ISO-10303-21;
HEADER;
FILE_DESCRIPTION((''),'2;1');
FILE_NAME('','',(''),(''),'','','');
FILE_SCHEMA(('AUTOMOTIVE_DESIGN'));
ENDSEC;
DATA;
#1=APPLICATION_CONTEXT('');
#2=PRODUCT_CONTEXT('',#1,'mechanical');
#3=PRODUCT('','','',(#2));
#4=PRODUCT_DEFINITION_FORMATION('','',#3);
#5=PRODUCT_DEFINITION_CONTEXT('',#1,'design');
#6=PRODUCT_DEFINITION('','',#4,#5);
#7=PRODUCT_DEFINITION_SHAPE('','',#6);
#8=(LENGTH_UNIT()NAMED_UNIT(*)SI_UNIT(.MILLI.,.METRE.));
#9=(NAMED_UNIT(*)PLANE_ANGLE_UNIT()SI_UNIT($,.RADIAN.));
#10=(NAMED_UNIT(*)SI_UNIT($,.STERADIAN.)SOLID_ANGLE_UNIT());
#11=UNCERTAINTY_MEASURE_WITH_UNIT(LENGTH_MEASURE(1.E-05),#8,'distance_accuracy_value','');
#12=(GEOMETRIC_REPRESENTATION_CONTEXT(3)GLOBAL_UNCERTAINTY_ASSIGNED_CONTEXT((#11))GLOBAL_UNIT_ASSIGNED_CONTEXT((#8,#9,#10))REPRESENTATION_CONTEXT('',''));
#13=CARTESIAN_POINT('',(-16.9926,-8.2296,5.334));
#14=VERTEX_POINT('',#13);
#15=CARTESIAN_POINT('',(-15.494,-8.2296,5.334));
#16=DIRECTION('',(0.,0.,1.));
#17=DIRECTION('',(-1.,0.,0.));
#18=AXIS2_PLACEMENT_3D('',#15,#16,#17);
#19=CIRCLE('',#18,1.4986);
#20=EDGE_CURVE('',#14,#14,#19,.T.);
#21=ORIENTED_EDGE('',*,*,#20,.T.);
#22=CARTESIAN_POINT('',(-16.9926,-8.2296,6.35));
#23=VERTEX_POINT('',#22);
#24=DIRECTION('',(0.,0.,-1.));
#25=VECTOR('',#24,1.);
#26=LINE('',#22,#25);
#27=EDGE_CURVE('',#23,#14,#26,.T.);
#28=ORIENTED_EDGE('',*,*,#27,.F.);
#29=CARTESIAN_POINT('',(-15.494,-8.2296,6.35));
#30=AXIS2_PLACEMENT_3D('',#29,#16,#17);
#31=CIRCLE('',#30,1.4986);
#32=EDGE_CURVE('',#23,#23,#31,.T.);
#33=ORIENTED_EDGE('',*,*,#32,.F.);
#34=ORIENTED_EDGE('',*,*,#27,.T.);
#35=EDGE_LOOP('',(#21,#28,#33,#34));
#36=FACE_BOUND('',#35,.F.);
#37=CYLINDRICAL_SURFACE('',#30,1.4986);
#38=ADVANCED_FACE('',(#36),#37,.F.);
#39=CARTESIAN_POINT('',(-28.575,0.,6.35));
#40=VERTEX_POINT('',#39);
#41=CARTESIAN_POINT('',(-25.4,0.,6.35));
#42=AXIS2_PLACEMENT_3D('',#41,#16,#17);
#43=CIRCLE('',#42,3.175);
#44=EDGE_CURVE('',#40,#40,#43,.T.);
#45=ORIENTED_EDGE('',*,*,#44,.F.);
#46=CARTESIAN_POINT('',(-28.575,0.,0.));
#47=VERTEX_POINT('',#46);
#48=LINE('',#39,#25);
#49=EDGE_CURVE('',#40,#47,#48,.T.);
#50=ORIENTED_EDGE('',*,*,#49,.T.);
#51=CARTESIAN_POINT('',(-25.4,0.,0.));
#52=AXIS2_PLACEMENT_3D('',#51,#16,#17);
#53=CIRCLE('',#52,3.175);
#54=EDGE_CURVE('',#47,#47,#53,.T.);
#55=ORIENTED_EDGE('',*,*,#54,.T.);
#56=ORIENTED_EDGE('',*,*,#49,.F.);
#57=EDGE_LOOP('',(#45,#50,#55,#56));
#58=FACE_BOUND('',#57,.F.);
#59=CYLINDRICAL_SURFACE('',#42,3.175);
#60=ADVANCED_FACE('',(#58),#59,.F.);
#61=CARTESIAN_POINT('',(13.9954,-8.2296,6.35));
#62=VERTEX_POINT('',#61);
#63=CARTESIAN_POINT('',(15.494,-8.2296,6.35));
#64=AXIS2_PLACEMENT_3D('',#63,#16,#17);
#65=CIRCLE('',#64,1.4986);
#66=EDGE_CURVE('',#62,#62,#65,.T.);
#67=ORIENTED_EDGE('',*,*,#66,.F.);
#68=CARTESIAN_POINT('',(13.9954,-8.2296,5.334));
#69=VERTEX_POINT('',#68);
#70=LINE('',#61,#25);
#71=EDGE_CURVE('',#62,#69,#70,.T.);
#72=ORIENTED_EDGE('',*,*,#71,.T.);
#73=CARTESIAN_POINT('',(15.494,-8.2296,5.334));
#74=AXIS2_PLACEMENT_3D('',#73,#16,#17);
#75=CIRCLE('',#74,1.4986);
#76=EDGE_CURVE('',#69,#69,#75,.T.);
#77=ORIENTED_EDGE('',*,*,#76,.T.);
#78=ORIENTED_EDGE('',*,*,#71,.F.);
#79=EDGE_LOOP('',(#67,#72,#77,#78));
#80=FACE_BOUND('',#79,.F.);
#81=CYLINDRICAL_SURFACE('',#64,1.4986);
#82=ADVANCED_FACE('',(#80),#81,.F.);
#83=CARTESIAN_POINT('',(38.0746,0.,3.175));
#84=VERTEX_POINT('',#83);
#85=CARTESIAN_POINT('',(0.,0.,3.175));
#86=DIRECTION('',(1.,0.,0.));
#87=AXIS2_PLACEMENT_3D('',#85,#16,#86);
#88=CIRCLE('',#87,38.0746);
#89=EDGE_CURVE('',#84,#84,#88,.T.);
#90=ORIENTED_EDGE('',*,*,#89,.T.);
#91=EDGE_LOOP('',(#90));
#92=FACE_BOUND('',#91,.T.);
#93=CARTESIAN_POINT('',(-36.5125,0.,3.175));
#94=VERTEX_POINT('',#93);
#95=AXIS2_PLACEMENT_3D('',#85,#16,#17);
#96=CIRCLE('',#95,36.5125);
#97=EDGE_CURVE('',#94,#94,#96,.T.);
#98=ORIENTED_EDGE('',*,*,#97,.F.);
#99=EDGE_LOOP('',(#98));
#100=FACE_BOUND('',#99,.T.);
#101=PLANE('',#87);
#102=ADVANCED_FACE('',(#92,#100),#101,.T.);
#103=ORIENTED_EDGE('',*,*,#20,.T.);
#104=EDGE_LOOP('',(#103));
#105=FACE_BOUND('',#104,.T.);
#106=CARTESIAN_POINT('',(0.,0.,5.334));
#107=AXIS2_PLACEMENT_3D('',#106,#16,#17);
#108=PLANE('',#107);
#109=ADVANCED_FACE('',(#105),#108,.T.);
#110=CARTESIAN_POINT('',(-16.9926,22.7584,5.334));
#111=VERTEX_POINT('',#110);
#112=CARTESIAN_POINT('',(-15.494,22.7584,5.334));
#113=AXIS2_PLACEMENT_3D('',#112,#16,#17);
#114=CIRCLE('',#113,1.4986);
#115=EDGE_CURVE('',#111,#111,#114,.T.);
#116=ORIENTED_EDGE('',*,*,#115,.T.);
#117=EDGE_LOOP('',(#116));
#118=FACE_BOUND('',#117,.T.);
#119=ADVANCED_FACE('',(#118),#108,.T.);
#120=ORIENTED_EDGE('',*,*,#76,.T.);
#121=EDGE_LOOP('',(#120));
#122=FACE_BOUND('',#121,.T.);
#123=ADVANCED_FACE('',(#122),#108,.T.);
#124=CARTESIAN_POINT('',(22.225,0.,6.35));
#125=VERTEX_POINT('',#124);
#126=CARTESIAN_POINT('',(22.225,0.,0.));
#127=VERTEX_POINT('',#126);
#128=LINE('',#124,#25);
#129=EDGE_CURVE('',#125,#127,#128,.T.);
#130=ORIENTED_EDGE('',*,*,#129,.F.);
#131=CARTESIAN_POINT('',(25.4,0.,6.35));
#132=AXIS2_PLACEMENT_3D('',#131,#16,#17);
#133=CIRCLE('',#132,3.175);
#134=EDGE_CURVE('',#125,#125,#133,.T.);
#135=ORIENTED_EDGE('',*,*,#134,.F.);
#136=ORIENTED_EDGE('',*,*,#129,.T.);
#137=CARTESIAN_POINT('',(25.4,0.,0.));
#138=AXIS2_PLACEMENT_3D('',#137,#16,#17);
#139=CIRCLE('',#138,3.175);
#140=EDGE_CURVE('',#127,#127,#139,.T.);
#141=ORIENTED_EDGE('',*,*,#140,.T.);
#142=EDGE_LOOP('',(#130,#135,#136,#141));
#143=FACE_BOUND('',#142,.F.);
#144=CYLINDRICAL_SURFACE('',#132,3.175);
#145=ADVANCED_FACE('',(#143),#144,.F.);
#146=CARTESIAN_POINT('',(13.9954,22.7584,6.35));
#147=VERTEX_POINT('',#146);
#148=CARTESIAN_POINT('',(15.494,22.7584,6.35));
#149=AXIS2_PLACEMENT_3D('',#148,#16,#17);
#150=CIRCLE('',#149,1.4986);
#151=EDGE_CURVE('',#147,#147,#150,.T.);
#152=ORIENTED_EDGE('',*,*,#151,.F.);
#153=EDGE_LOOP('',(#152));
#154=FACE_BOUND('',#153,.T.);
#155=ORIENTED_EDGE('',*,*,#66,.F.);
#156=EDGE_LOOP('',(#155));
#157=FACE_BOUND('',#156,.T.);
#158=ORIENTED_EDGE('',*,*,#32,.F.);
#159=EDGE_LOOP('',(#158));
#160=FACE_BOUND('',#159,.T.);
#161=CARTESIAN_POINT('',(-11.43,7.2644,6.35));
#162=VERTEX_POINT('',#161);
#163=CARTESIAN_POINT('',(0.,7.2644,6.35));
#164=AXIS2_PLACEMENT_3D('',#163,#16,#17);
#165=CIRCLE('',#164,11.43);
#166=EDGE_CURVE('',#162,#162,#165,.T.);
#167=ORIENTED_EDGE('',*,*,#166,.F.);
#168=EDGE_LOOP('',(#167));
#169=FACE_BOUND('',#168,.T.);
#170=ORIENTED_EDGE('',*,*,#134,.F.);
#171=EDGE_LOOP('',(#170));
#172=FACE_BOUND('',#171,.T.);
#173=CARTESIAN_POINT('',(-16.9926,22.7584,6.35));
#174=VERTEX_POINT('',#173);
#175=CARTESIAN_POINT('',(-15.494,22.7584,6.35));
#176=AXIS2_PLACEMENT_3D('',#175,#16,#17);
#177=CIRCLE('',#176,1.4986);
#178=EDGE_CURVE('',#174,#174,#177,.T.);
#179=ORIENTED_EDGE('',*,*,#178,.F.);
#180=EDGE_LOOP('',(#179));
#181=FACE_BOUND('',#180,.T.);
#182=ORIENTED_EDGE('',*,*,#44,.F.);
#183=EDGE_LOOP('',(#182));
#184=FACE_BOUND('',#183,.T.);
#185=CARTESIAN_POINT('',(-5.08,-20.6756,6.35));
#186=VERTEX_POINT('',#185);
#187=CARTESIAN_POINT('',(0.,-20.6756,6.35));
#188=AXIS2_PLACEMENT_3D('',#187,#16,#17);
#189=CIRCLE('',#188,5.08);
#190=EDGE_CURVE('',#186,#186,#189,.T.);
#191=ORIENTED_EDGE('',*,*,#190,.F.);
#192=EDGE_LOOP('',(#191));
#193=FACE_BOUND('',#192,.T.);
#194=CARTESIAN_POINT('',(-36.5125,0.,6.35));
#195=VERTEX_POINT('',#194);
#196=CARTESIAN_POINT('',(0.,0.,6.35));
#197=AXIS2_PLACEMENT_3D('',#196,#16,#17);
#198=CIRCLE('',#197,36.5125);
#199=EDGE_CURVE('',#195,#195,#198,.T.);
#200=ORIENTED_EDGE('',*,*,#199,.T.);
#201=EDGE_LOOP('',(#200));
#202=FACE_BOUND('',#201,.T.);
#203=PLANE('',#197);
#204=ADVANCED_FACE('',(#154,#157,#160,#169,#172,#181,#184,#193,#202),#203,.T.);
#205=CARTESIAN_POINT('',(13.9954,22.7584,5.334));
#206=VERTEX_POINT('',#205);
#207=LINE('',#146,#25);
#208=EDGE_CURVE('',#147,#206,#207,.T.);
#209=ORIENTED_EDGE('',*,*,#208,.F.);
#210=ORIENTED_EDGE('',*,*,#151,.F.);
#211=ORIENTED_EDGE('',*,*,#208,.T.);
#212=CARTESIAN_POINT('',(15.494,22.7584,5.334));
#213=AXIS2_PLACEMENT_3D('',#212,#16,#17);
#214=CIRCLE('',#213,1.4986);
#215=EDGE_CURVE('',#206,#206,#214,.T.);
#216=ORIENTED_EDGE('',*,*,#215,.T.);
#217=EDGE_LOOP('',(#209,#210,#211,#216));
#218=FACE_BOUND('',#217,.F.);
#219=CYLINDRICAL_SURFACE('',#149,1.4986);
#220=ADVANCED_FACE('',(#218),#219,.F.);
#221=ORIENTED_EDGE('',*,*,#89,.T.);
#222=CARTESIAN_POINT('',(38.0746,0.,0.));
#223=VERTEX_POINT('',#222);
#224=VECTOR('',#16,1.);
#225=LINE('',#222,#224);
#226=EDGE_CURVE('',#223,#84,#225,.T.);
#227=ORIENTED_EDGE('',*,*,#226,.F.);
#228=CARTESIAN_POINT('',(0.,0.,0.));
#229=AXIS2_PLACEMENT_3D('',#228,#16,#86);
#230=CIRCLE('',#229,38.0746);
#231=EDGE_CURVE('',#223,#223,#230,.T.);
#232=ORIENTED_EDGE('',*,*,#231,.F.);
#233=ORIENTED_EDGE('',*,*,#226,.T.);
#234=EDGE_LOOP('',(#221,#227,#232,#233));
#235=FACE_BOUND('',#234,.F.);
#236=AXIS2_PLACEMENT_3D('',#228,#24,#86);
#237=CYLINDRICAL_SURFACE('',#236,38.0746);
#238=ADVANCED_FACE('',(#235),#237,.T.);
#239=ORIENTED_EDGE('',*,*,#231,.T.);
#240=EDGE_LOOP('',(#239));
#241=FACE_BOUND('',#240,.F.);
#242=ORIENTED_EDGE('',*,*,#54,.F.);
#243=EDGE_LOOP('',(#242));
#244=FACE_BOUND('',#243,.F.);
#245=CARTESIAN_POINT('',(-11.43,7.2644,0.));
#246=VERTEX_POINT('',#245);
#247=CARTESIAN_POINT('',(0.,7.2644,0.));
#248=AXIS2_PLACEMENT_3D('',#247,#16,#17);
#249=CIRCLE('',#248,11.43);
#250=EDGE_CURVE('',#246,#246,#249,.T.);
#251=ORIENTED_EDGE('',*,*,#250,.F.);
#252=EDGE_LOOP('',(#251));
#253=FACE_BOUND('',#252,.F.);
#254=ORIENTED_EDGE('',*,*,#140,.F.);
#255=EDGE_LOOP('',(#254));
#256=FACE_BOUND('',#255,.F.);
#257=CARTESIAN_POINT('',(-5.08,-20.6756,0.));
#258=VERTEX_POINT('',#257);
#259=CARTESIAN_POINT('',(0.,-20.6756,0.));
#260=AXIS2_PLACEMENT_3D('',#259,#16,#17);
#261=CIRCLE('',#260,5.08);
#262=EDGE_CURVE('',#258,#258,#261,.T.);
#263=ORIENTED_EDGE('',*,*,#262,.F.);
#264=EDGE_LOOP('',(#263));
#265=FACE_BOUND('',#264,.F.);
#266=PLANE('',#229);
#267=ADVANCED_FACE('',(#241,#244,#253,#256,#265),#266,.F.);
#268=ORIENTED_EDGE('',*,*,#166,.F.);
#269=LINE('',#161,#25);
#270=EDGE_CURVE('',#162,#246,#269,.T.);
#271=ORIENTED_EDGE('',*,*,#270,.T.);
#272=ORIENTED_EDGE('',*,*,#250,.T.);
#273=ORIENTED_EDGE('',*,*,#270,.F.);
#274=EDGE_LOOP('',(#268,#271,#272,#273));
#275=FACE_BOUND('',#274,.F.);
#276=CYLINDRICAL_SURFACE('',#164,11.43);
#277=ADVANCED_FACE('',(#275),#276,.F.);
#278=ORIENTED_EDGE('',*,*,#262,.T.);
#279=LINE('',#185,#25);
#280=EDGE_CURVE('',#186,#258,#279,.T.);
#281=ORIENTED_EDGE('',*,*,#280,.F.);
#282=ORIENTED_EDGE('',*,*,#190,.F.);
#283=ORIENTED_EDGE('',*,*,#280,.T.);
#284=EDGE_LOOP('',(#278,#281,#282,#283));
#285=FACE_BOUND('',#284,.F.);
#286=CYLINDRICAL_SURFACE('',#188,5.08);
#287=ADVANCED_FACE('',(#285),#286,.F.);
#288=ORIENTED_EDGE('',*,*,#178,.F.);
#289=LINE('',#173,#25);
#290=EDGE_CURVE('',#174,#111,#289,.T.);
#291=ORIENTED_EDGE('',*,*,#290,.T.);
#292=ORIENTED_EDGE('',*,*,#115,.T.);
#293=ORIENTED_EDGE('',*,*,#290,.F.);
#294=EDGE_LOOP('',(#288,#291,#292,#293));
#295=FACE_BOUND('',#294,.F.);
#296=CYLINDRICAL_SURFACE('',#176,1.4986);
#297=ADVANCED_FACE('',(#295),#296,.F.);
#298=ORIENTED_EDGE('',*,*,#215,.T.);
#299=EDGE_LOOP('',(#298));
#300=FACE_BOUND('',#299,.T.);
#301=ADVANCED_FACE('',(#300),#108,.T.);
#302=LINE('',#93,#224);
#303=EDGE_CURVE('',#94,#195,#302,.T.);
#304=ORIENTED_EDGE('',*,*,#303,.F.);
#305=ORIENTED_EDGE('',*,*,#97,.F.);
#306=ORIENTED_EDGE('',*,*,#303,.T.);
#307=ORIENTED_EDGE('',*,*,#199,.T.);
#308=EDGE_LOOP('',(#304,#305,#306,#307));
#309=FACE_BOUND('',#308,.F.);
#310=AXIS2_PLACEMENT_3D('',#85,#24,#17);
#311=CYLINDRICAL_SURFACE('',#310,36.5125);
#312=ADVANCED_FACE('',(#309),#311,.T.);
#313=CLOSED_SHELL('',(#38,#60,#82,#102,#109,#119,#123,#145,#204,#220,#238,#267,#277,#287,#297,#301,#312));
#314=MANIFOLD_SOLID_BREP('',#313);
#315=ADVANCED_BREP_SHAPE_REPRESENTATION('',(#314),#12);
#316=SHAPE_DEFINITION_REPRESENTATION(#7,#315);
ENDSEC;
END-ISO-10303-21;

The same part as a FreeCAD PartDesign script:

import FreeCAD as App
import Part
import Sketcher
from FreeCAD import Vector
Q = App.Units.Quantity

doc = App.newDocument("Part")
body = doc.addObject("PartDesign::Body", "Body")

sketch1 = body.newObject("Sketcher::SketchObject", "Sketch")
sketch1.AttachmentSupport = (doc.getObject("XY_Plane"), [""])
sketch1.MapMode = "FlatFace"
sketch1.addGeometry(Part.Circle(Vector(0, 0, 0), Vector(0, 0, 1), 38), False)
sketch1.addConstraint([
    Sketcher.Constraint("Coincident", 0, 3, -1, 1),
    Sketcher.Constraint("Diameter", 0, Q("2.998 in")),
])
pad1 = body.newObject("PartDesign::Pad", "Pad")
pad1.Profile = sketch1
pad1.Length = Q("0.125 in")

sketch2 = body.newObject("Sketcher::SketchObject", "Sketch001")
sketch2.AttachmentSupport = (doc.getObject("XY_Plane"), [""])
sketch2.MapMode = "FlatFace"
sketch2.AttachmentOffset = App.Placement(Vector(0, 0, 0.125 * 25.4), App.Rotation())
sketch2.addGeometry(Part.Circle(Vector(0, 0, 0), Vector(0, 0, 1), 37), False)
sketch2.addConstraint([
    Sketcher.Constraint("Coincident", 0, 3, -1, 1),
    Sketcher.Constraint("Diameter", 0, Q("2.875 in")),
])
pad2 = body.newObject("PartDesign::Pad", "Pad001")
pad2.Profile = sketch2
pad2.Length = Q("0.125 in")

sketch3 = body.newObject("Sketcher::SketchObject", "Sketch002")
sketch3.AttachmentSupport = (doc.getObject("XY_Plane"), [""])
sketch3.MapMode = "FlatFace"
sketch3.AttachmentOffset = App.Placement(Vector(0, 0, 0.25 * 25.4), App.Rotation())
sketch3.addGeometry([
    Part.Circle(Vector(-25.4, 0, 0), Vector(0, 0, 1), 3.2),
    Part.Circle(Vector(25.4, 0, 0), Vector(0, 0, 1), 3.2),
    Part.Circle(Vector(0, 7.3, 0), Vector(0, 0, 1), 11.4),
    Part.Circle(Vector(0, -20.7, 0), Vector(0, 0, 1), 5.1),
], False)
sketch3.addConstraint([
    Sketcher.Constraint("Equal", 0, 1),
    Sketcher.Constraint("Symmetric", 0, 3, 1, 3, -1, 1),
    Sketcher.Constraint("PointOnObject", 0, 3, -1),
    Sketcher.Constraint("PointOnObject", 2, 3, -2),
    Sketcher.Constraint("PointOnObject", 3, 3, -2),
    Sketcher.Constraint("Diameter", 2, Q("0.9 in")),
    Sketcher.Constraint("Diameter", 3, Q("0.4 in")),
    Sketcher.Constraint("Diameter", 0, Q("0.25 in")),
    Sketcher.Constraint("DistanceX", 0, 3, -1, 1, Q("1 in")),
    Sketcher.Constraint("DistanceY", 3, 3, 2, 3, Q("1.1 in")),
    Sketcher.Constraint("DistanceY", 3, 3, -1, 1, Q("0.814 in")),
])
pocket1 = body.newObject("PartDesign::Pocket", "Pocket")
pocket1.Profile = sketch3
pocket1.Length = Q("0.9 in")

sketch4 = body.newObject("Sketcher::SketchObject", "Sketch003")
sketch4.AttachmentSupport = (doc.getObject("XY_Plane"), [""])
sketch4.MapMode = "FlatFace"
sketch4.AttachmentOffset = App.Placement(Vector(0, 0, 0.25 * 25.4), App.Rotation())
sketch4.addGeometry([
    Part.Circle(Vector(-15.5, 22.8, 0), Vector(0, 0, 1), 1.5),
    Part.Circle(Vector(-15.5, -8.2, 0), Vector(0, 0, 1), 1.5),
    Part.Circle(Vector(15.5, -8.2, 0), Vector(0, 0, 1), 1.5),
    Part.Circle(Vector(15.5, 22.8, 0), Vector(0, 0, 1), 1.5),
], False)
sketch4.addConstraint([
    Sketcher.Constraint("Equal", 0, 1),
    Sketcher.Constraint("Equal", 1, 2),
    Sketcher.Constraint("Equal", 2, 3),
    Sketcher.Constraint("Symmetric", 1, 3, 2, 3, -2),
    Sketcher.Constraint("Symmetric", 0, 3, 3, 3, -2),
    Sketcher.Constraint("Vertical", 0, 3, 1, 3),
    Sketcher.Constraint("Diameter", 0, Q("0.118 in")),
    Sketcher.Constraint("DistanceX", 0, 3, -1, 1, Q("0.61 in")),
    Sketcher.Constraint("DistanceY", 1, 3, 0, 3, Q("1.22 in")),
    Sketcher.Constraint("DistanceY", -1, 1, 0, 3, Q("0.896 in")),
])
pocket2 = body.newObject("PartDesign::Pocket", "Pocket001")
pocket2.Profile = sketch4
pocket2.Length = Q("0.04 in")

doc.recompute()
